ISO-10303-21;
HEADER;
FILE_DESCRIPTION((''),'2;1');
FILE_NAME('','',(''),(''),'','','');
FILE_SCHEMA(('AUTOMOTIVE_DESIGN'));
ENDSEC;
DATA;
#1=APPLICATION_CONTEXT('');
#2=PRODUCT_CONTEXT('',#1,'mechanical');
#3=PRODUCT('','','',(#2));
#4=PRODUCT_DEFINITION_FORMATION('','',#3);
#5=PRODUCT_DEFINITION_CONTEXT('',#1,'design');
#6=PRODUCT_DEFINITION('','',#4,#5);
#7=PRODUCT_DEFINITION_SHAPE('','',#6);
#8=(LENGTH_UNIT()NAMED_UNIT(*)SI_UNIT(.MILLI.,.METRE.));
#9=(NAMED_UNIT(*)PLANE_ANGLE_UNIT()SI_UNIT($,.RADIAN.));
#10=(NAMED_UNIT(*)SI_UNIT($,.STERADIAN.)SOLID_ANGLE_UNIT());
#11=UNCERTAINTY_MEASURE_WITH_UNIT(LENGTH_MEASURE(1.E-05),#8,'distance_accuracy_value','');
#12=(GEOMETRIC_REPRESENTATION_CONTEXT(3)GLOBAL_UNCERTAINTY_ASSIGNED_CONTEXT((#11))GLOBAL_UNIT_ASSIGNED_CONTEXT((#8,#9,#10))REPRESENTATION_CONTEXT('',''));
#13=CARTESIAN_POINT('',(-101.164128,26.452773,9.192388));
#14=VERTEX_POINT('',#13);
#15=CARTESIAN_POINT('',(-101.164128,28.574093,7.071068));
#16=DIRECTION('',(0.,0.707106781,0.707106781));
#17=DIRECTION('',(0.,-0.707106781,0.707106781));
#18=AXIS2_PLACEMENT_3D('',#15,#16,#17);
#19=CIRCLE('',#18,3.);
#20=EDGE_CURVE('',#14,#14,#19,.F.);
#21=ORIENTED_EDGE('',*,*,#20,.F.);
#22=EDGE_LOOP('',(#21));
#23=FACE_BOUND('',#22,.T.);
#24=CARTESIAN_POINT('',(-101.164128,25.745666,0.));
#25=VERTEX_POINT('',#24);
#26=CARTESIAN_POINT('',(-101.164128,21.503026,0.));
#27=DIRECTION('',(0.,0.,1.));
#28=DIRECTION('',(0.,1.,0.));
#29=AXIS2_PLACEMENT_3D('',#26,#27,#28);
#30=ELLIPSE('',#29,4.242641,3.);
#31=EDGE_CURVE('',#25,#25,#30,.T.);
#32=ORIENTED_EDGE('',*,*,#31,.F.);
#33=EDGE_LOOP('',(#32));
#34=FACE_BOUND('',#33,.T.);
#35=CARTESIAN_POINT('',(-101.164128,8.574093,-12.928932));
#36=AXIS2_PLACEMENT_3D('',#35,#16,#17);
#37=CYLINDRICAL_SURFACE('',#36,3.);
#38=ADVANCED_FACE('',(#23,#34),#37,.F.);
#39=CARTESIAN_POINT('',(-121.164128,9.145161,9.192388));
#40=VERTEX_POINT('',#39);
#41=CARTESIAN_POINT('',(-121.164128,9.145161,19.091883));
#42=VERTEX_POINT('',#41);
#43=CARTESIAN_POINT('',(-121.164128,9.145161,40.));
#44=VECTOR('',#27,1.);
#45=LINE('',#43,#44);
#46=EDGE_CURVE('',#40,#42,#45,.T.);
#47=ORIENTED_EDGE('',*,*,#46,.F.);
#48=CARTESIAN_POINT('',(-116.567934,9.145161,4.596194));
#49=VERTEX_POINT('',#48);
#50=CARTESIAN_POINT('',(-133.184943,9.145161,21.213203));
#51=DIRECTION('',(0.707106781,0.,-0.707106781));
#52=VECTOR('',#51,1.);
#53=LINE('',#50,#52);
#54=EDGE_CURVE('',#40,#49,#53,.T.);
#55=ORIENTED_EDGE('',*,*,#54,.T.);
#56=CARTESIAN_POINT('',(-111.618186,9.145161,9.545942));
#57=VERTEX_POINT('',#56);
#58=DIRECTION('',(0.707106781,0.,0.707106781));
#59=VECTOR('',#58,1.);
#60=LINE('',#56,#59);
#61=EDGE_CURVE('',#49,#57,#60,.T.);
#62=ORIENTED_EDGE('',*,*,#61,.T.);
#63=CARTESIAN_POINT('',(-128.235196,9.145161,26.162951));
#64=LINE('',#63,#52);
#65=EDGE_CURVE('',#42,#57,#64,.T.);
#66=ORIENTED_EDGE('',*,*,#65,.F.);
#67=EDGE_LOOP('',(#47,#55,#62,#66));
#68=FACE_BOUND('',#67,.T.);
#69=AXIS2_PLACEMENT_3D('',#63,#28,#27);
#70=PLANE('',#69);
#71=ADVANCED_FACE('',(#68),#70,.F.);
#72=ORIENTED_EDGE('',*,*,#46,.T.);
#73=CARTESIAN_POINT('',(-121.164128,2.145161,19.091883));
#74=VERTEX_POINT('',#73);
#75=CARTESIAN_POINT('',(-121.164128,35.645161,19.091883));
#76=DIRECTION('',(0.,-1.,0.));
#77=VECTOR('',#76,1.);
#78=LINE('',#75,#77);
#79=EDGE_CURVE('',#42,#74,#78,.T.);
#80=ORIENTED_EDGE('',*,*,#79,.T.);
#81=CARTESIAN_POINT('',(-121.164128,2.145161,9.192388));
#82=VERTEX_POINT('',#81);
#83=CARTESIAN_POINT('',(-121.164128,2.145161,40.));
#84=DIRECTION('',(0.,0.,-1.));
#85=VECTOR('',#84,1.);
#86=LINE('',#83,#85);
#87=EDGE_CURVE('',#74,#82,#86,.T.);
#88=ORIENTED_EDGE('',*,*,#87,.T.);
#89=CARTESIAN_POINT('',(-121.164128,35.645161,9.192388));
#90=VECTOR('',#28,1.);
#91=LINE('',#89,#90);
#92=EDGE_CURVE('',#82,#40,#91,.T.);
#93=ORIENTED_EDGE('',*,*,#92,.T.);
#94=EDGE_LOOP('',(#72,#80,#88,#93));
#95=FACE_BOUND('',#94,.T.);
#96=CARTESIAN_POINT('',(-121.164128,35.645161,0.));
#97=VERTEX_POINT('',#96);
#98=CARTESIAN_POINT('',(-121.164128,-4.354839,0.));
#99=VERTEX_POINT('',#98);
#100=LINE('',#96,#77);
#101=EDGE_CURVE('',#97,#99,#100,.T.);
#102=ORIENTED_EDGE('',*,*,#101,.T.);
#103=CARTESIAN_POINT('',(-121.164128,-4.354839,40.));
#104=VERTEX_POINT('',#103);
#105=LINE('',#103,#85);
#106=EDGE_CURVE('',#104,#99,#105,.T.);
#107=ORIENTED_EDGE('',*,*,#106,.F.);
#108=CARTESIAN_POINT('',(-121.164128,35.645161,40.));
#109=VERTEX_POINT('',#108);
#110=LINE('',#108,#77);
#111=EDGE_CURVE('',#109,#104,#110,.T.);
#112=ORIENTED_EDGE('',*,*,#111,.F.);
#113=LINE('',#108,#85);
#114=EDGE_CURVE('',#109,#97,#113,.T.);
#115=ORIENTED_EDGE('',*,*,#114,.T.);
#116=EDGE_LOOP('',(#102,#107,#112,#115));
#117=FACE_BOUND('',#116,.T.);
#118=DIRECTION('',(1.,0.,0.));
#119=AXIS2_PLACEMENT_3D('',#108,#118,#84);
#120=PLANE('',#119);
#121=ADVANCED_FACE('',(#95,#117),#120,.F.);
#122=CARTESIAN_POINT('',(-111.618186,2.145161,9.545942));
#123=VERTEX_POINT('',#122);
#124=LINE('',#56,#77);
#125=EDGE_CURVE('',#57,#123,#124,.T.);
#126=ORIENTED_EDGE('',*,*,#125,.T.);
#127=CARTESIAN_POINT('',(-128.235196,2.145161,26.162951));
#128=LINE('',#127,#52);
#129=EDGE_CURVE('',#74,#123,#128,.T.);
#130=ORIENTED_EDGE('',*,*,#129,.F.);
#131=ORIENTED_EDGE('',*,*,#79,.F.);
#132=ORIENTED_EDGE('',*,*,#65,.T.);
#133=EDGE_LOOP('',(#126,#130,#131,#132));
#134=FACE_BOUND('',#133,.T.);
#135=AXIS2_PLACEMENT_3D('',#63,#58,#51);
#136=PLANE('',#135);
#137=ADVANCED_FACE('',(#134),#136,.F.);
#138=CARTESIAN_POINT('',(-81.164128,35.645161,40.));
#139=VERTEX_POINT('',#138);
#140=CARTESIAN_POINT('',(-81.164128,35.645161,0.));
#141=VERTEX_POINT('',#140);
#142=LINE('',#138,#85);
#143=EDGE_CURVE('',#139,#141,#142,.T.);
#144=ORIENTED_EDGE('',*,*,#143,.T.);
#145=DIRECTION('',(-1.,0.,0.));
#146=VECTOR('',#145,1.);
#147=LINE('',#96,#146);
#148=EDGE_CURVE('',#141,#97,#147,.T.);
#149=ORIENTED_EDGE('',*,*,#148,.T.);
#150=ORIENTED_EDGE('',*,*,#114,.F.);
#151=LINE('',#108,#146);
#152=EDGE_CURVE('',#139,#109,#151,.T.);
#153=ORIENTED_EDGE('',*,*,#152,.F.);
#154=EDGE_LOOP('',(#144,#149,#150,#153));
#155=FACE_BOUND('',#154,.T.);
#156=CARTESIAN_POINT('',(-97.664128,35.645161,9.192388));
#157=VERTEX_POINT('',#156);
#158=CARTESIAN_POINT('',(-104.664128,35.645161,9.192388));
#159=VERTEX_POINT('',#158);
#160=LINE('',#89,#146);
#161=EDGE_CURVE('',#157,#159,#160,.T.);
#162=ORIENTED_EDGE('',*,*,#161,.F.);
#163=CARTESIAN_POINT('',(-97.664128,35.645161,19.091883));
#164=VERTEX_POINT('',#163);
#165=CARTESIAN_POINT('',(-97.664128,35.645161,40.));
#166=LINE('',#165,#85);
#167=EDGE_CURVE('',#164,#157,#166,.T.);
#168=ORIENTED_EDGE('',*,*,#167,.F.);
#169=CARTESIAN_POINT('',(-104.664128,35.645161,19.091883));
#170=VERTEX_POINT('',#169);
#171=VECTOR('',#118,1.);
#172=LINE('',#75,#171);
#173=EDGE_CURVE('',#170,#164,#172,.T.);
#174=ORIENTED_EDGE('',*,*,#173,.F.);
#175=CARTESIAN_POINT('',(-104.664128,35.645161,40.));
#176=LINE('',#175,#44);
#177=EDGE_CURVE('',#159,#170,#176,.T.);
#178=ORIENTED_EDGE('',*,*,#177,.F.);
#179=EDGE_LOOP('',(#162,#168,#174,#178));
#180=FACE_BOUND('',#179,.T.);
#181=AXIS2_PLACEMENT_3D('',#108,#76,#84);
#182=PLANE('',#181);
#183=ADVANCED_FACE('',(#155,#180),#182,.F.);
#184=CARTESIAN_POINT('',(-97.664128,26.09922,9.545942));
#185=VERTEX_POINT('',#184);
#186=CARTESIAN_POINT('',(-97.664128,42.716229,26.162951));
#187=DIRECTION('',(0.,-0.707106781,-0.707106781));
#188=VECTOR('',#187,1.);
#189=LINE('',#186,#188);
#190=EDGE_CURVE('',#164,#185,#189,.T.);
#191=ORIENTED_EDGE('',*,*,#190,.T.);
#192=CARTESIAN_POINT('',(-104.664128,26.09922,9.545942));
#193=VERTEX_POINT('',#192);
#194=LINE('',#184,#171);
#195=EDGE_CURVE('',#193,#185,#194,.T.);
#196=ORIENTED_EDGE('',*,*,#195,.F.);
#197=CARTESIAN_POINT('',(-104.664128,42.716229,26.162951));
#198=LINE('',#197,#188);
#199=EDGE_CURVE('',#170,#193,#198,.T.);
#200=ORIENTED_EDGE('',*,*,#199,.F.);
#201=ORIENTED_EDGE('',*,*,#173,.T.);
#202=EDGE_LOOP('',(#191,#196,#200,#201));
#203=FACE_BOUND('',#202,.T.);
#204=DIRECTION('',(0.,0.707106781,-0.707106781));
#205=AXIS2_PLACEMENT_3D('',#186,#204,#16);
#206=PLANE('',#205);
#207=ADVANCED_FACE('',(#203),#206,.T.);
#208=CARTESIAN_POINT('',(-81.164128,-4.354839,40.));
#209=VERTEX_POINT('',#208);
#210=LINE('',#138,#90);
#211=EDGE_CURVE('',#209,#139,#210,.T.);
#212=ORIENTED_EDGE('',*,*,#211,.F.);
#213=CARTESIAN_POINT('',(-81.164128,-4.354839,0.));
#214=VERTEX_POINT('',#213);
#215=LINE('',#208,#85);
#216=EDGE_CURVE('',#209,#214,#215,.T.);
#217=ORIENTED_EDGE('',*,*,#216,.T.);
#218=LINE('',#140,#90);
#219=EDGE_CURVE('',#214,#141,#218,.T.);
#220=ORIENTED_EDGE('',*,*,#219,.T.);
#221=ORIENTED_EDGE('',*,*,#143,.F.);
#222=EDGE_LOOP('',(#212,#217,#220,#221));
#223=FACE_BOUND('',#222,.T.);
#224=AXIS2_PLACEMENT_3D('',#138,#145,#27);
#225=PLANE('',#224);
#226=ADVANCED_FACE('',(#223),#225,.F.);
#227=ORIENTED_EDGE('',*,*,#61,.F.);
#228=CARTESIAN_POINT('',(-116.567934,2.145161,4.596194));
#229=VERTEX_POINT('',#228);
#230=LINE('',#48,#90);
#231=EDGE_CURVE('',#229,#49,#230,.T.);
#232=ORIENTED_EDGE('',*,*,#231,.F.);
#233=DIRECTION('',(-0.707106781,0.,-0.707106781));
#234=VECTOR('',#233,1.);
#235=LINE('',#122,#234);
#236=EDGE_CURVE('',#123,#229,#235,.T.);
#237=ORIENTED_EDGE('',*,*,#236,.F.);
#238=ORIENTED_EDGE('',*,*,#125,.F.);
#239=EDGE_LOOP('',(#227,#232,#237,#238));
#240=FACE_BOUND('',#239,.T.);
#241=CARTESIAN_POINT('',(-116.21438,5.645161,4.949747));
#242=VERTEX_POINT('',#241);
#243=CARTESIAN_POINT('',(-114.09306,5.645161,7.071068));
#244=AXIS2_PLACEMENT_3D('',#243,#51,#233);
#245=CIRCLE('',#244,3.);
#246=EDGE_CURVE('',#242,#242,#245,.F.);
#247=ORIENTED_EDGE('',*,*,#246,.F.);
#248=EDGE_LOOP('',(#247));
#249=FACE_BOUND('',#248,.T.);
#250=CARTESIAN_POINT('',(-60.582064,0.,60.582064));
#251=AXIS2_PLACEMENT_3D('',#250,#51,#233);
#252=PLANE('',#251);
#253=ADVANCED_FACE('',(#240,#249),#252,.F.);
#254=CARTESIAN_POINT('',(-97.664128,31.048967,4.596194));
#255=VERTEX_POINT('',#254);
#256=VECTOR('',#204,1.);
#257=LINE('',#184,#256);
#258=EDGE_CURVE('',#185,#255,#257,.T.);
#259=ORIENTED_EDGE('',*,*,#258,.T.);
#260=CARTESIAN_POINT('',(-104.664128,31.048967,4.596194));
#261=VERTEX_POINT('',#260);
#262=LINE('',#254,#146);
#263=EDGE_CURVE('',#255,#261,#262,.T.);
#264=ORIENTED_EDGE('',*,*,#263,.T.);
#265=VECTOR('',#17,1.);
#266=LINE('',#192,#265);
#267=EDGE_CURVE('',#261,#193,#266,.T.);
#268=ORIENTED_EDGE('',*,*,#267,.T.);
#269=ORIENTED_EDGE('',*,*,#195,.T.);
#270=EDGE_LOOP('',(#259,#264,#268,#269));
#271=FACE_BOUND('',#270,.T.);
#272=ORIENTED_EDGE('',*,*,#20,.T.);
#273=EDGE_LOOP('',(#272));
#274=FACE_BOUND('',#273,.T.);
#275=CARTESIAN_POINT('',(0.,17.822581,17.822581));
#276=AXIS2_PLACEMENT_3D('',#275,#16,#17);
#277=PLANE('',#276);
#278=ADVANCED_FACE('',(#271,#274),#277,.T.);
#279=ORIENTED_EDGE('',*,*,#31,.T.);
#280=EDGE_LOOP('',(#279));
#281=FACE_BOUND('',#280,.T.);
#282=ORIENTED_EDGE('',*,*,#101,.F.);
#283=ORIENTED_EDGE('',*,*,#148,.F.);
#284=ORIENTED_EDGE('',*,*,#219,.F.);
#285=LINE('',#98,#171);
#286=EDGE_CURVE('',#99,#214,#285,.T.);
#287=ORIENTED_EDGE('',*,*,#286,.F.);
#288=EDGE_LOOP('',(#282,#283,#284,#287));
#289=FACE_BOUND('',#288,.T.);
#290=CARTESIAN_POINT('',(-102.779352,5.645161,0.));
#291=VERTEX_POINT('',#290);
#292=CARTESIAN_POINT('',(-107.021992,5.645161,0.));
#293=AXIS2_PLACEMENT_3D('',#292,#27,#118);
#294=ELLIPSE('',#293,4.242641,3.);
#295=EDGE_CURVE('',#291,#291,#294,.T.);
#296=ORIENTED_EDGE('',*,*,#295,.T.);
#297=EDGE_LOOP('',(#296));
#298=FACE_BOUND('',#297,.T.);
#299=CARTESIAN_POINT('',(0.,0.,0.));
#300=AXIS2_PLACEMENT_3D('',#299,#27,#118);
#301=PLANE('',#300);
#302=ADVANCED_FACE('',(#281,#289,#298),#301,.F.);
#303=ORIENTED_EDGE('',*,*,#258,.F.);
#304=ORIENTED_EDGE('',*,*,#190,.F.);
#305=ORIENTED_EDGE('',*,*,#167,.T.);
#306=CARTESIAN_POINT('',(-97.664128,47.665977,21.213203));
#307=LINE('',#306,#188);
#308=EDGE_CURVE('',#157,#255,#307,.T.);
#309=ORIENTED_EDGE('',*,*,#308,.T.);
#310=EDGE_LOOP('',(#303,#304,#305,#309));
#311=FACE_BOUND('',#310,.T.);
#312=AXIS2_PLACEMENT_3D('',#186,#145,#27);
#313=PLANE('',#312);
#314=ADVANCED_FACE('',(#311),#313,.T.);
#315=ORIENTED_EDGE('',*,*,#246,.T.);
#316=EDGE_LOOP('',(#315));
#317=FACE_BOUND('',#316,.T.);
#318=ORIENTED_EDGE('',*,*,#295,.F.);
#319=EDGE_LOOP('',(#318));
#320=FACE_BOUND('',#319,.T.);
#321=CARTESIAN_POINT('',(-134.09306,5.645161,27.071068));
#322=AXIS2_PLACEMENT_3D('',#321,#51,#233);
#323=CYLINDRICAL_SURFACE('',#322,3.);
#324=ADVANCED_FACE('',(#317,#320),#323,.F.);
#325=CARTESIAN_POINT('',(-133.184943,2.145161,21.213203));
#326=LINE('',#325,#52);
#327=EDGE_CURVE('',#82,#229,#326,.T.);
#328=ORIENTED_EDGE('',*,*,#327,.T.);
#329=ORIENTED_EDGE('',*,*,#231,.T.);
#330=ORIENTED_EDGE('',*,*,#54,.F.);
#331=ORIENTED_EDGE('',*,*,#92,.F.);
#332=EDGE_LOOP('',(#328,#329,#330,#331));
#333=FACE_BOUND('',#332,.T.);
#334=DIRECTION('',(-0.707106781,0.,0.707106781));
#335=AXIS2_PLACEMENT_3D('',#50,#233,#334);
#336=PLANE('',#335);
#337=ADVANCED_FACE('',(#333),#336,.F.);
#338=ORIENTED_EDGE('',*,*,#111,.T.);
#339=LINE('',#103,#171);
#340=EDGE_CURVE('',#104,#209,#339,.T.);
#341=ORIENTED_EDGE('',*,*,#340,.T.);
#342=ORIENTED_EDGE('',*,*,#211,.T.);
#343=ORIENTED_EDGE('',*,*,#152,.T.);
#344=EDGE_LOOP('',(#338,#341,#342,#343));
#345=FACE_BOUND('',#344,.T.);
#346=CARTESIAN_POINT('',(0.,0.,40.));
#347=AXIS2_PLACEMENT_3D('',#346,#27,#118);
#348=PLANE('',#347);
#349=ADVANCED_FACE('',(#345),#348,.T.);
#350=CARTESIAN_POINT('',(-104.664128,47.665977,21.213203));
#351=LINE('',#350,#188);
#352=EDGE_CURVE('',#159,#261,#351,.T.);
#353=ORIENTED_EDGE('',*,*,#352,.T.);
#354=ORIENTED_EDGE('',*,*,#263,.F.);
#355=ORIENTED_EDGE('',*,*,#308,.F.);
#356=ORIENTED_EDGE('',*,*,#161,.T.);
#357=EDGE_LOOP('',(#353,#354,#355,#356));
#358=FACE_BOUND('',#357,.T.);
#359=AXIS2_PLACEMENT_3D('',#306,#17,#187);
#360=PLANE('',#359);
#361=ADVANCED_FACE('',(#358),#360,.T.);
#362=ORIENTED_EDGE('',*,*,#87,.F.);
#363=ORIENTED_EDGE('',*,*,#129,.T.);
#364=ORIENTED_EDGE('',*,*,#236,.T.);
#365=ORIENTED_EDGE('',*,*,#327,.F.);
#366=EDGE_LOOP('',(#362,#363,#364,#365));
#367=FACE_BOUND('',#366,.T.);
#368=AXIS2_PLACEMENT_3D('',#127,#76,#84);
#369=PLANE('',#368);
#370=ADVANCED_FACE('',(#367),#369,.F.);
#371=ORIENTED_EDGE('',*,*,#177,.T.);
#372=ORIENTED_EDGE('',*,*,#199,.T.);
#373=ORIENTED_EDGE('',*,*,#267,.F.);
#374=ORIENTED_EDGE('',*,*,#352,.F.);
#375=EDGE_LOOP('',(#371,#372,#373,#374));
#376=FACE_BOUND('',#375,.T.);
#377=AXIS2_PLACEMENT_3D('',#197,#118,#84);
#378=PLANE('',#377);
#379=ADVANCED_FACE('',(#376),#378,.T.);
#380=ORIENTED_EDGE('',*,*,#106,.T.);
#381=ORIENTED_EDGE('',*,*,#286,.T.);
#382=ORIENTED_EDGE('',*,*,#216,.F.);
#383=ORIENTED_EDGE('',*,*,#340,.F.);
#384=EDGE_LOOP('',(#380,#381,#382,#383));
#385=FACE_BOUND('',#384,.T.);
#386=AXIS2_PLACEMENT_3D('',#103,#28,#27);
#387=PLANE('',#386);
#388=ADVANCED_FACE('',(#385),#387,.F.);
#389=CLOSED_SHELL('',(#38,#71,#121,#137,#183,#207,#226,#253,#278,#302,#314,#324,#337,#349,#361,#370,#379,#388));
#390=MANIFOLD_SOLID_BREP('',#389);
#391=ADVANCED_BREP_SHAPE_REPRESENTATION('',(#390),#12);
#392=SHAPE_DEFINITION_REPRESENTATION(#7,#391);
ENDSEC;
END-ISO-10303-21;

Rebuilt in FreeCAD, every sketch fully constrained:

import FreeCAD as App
import Part
import Sketcher

doc = App.newDocument("Part")
body = doc.addObject("PartDesign::Body", "Body")

sketch1 = body.newObject("Sketcher::SketchObject", "Sketch")
sketch1.AttachmentSupport = (doc.getObject("XY_Plane"), [""])
sketch1.MapMode = "FlatFace"
sketch1.addGeometry(Part.LineSegment(App.Vector(-121, 36, 0), App.Vector(-121, -4, 0)), False)
sketch1.addGeometry(Part.LineSegment(App.Vector(-121, -4, 0), App.Vector(-81, -4, 0)), False)
sketch1.addGeometry(Part.LineSegment(App.Vector(-81, -4, 0), App.Vector(-81, 36, 0)), False)
sketch1.addGeometry(Part.LineSegment(App.Vector(-81, 36, 0), App.Vector(-121, 36, 0)), False)
sketch1.addConstraint(Sketcher.Constraint("Coincident", 0, 2, 1, 1))
sketch1.addConstraint(Sketcher.Constraint("Coincident", 1, 2, 2, 1))
sketch1.addConstraint(Sketcher.Constraint("Coincident", 2, 2, 3, 1))
sketch1.addConstraint(Sketcher.Constraint("Coincident", 3, 2, 0, 1))
sketch1.addConstraint(Sketcher.Constraint("Vertical", 0))
sketch1.addConstraint(Sketcher.Constraint("Horizontal", 1))
sketch1.addConstraint(Sketcher.Constraint("Vertical", 2))
sketch1.addConstraint(Sketcher.Constraint("Horizontal", 3))
sketch1.addConstraint(Sketcher.Constraint("Equal", 3, 0))
sketch1.addConstraint(Sketcher.Constraint("DistanceX", 1, 1, 1, 2, 40.0))
sketch1.addConstraint(Sketcher.Constraint("DistanceY", 0, 2, -1, 1, 4.354839))
sketch1.addConstraint(Sketcher.Constraint("DistanceX", 0, 2, -1, 1, 121.164128))
pad1 = body.newObject("PartDesign::Pad", "Pad")
pad1.Profile = sketch1
pad1.Length = 40

sketch2 = body.newObject("Sketcher::SketchObject", "Sketch001")
sketch2.Placement = App.Placement(App.Vector(0, 17.822581, 17.822581), App.Rotation(App.Vector(1, 0, 0), App.Vector(0, 0.707106781, -0.707106781), App.Vector(0, 0.707106781, 0.707106781), "ZXY"))
sketch2.addGeometry(Part.Circle(App.Vector(-101.2, 15.2, 0), App.Vector(0, 0, 1), 3), False)
sketch2.addConstraint(Sketcher.Constraint("Diameter", 0, 6.0))
sketch2.addConstraint(Sketcher.Constraint("DistanceX", 0, 3, -1, 1, 101.164128))
sketch2.addConstraint(Sketcher.Constraint("DistanceY", -1, 1, 0, 3, 15.204935))
pocket1 = body.newObject("PartDesign::Pocket", "Pocket")
pocket1.Profile = sketch2
pocket1.Type = "ThroughAll"
pocket1.Midplane = True

sketch3 = body.newObject("Sketcher::SketchObject", "Sketch002")
sketch3.Placement = App.Placement(App.Vector(0, 17.822581, 17.822581), App.Rotation(App.Vector(1, 0, 0), App.Vector(0, 0.707106781, -0.707106781), App.Vector(0, 0.707106781, 0.707106781), "ZXY"))
sketch3.addGeometry(Part.LineSegment(App.Vector(-105, 19, 0), App.Vector(-105, 12, 0)), False)
sketch3.addGeometry(Part.LineSegment(App.Vector(-105, 12, 0), App.Vector(-98, 12, 0)), False)
sketch3.addGeometry(Part.LineSegment(App.Vector(-98, 12, 0), App.Vector(-98, 19, 0)), False)
sketch3.addGeometry(Part.LineSegment(App.Vector(-98, 19, 0), App.Vector(-105, 19, 0)), False)
sketch3.addConstraint(Sketcher.Constraint("Coincident", 0, 2, 1, 1))
sketch3.addConstraint(Sketcher.Constraint("Coincident", 1, 2, 2, 1))
sketch3.addConstraint(Sketcher.Constraint("Coincident", 2, 2, 3, 1))
sketch3.addConstraint(Sketcher.Constraint("Coincident", 3, 2, 0, 1))
sketch3.addConstraint(Sketcher.Constraint("Vertical", 0))
sketch3.addConstraint(Sketcher.Constraint("Horizontal", 1))
sketch3.addConstraint(Sketcher.Constraint("Vertical", 2))
sketch3.addConstraint(Sketcher.Constraint("Horizontal", 3))
sketch3.addConstraint(Sketcher.Constraint("Equal", 3, 0))
sketch3.addConstraint(Sketcher.Constraint("DistanceX", 1, 1, 1, 2, 7.0))
sketch3.addConstraint(Sketcher.Constraint("DistanceX", 0, 2, -1, 1, 104.664128))
sketch3.addConstraint(Sketcher.Constraint("DistanceY", -1, 1, 0, 2, 11.704935))
pocket2 = body.newObject("PartDesign::Pocket", "Pocket001")
pocket2.Profile = sketch3
pocket2.Length = 23.5
pocket2.Reversed = True

sketch4 = body.newObject("Sketcher::SketchObject", "Sketch003")
sketch4.Placement = App.Placement(App.Vector(-60.582064, 0, 60.582064), App.Rotation(App.Vector(-0.707106781, 0, -0.707106781), App.Vector(0, 0.999999999, 0), App.Vector(0.707106781, 0, -0.707106781), "ZXY"))
sketch4.addGeometry(Part.Circle(App.Vector(75.7, 5.6, 0), App.Vector(0, 0, 1), 3), False)
sketch4.addConstraint(Sketcher.Constraint("Diameter", 0, 6.0))
sketch4.addConstraint(Sketcher.Constraint("DistanceY", -1, 1, 0, 3, 5.645161))
sketch4.addConstraint(Sketcher.Constraint("DistanceX", -1, 1, 0, 3, 75.675976))
pocket3 = body.newObject("PartDesign::Pocket", "Pocket002")
pocket3.Profile = sketch4
pocket3.Type = "ThroughAll"
pocket3.Midplane = True

sketch5 = body.newObject("Sketcher::SketchObject", "Sketch004")
sketch5.Placement = App.Placement(App.Vector(-60.582064, 0, 60.582064), App.Rotation(App.Vector(-0.707106781, 0, -0.707106781), App.Vector(0, 0.999999999, 0), App.Vector(0.707106781, 0, -0.707106781), "ZXY"))
sketch5.addGeometry(Part.LineSegment(App.Vector(72, 9, 0), App.Vector(72, 2, 0)), False)
sketch5.addGeometry(Part.LineSegment(App.Vector(72, 2, 0), App.Vector(79, 2, 0)), False)
sketch5.addGeometry(Part.LineSegment(App.Vector(79, 2, 0), App.Vector(79, 9, 0)), False)
sketch5.addGeometry(Part.LineSegment(App.Vector(79, 9, 0), App.Vector(72, 9, 0)), False)
sketch5.addConstraint(Sketcher.Constraint("Coincident", 0, 2, 1, 1))
sketch5.addConstraint(Sketcher.Constraint("Coincident", 1, 2, 2, 1))
sketch5.addConstraint(Sketcher.Constraint("Coincident", 2, 2, 3, 1))
sketch5.addConstraint(Sketcher.Constraint("Coincident", 3, 2, 0, 1))
sketch5.addConstraint(Sketcher.Constraint("Vertical", 0))
sketch5.addConstraint(Sketcher.Constraint("Horizontal", 1))
sketch5.addConstraint(Sketcher.Constraint("Vertical", 2))
sketch5.addConstraint(Sketcher.Constraint("Horizontal", 3))
sketch5.addConstraint(Sketcher.Constraint("Equal", 3, 0))
sketch5.addConstraint(Sketcher.Constraint("DistanceX", 1, 1, 1, 2, 7.0))
sketch5.addConstraint(Sketcher.Constraint("DistanceY", -1, 1, 0, 2, 2.145161))
sketch5.addConstraint(Sketcher.Constraint("DistanceX", -1, 1, 0, 2, 72.175976))
pocket4 = body.newObject("PartDesign::Pocket", "Pocket003")
pocket4.Profile = sketch5
pocket4.Length = 23.5

doc.recompute()
